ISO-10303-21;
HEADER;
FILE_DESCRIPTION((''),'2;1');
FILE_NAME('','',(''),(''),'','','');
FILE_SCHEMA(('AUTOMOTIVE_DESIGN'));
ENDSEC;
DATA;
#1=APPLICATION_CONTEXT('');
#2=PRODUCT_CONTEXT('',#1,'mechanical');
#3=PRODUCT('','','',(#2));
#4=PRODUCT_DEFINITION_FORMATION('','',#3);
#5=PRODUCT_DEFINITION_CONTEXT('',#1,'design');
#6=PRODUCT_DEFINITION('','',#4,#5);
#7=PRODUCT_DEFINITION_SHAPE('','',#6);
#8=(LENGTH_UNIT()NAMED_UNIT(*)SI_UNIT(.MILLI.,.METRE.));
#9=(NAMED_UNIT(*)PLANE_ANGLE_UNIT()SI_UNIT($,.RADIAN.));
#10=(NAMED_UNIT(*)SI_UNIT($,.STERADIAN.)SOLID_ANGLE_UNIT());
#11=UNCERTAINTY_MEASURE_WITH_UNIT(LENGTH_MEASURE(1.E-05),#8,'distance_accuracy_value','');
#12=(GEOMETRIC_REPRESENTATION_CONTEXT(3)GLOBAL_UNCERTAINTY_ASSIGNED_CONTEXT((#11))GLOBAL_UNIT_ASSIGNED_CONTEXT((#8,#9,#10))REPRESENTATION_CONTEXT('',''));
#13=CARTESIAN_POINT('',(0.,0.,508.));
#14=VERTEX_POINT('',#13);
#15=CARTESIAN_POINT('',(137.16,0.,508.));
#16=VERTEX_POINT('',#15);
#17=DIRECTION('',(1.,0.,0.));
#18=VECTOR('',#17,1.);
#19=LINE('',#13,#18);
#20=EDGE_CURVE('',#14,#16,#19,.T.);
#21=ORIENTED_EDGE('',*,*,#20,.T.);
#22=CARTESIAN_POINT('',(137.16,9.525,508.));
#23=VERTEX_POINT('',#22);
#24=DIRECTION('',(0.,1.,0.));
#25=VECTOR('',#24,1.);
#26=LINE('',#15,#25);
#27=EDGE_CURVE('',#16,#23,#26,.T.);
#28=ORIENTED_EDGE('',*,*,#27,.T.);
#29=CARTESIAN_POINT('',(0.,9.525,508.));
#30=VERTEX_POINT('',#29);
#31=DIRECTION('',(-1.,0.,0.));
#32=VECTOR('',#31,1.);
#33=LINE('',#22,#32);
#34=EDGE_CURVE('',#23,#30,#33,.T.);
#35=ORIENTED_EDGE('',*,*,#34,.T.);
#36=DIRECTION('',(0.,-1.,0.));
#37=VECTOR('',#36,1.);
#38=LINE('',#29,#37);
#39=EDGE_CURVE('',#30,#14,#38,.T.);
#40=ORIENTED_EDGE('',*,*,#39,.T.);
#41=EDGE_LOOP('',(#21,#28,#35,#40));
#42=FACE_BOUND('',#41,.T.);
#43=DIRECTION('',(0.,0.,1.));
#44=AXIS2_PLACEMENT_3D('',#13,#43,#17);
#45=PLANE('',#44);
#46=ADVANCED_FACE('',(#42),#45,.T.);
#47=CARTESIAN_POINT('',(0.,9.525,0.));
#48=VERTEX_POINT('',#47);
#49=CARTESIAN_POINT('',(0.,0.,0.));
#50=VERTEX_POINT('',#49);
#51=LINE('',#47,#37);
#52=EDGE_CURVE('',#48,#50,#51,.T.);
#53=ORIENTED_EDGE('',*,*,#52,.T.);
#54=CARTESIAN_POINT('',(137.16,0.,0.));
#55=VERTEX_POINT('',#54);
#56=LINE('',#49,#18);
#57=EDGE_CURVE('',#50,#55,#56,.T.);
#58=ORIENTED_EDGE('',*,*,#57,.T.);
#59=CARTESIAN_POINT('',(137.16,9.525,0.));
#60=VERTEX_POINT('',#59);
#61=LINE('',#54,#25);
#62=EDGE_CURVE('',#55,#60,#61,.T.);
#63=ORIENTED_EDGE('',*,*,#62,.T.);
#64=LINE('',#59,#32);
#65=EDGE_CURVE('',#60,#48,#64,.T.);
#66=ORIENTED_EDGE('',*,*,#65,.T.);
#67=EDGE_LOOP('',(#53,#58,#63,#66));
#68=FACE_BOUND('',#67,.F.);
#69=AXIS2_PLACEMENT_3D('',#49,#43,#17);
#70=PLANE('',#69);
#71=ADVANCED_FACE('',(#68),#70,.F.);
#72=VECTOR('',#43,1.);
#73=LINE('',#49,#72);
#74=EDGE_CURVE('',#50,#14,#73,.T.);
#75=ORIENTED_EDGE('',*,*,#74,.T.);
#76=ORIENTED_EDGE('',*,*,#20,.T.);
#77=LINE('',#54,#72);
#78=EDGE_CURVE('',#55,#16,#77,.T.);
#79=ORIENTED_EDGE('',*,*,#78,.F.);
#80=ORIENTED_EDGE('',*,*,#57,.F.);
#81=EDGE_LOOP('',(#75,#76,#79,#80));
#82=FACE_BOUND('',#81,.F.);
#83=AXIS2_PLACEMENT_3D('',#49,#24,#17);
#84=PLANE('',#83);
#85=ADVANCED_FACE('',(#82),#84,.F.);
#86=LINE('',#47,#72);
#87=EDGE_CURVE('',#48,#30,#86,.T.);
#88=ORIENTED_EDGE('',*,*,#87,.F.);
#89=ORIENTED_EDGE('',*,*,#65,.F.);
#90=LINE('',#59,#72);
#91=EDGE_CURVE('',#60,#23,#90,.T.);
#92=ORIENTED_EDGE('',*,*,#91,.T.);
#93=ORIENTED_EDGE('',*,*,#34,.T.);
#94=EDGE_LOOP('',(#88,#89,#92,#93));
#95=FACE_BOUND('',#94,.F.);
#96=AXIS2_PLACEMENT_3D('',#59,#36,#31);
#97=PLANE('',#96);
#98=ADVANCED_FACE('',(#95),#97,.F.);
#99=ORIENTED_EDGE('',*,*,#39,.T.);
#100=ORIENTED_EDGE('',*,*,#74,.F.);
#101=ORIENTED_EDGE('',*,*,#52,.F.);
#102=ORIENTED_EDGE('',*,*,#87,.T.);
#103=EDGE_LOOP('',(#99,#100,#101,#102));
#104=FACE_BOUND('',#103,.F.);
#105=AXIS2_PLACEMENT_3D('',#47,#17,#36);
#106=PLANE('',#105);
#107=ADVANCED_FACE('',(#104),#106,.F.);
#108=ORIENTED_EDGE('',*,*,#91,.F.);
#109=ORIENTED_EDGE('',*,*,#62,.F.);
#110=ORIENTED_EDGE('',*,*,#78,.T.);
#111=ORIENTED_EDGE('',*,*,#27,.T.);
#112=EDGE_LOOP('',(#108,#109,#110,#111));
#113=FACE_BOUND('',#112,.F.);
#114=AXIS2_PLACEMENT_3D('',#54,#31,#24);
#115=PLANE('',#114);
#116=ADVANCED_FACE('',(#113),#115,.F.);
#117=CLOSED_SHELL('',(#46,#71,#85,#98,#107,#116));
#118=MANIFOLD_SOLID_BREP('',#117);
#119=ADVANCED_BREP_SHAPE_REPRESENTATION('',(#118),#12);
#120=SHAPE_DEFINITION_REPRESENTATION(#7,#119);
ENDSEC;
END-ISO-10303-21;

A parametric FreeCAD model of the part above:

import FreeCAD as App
import Part
import Sketcher

V = App.Vector
Q = App.Units.Quantity

doc = App.newDocument("Part")
body = doc.addObject("PartDesign::Body", "Body")

sketch1 = body.newObject("Sketcher::SketchObject", "Sketch")
sketch1.AttachmentSupport = (doc.getObject("XY_Plane"), [""])
sketch1.MapMode = "FlatFace"
sketch1.addGeometry([
    Part.LineSegment(V(0, 10, 0), V(0, 0, 0)),
    Part.LineSegment(V(0, 0, 0), V(137, 0, 0)),
    Part.LineSegment(V(137, 0, 0), V(137, 10, 0)),
    Part.LineSegment(V(137, 10, 0), V(0, 10, 0)),
], False)
sketch1.addConstraint([
    Sketcher.Constraint("Coincident", 0, 2, 1, 1),
    Sketcher.Constraint("Coincident", 1, 2, 2, 1),
    Sketcher.Constraint("Coincident", 2, 2, 3, 1),
    Sketcher.Constraint("Coincident", 3, 2, 0, 1),
    Sketcher.Constraint("Vertical", 0),
    Sketcher.Constraint("Horizontal", 1),
    Sketcher.Constraint("Vertical", 2),
    Sketcher.Constraint("Horizontal", 3),
    Sketcher.Constraint("Coincident", 0, 2, -1, 1),
    Sketcher.Constraint("DistanceX", 1, 1, 1, 2, Q("5.4 in")),
    Sketcher.Constraint("DistanceY", 0, 2, 0, 1, Q("0.375 in")),
])
pad1 = body.newObject("PartDesign::Pad", "Pad")
pad1.Profile = sketch1
pad1.Length = Q("20 in")

doc.recompute()
